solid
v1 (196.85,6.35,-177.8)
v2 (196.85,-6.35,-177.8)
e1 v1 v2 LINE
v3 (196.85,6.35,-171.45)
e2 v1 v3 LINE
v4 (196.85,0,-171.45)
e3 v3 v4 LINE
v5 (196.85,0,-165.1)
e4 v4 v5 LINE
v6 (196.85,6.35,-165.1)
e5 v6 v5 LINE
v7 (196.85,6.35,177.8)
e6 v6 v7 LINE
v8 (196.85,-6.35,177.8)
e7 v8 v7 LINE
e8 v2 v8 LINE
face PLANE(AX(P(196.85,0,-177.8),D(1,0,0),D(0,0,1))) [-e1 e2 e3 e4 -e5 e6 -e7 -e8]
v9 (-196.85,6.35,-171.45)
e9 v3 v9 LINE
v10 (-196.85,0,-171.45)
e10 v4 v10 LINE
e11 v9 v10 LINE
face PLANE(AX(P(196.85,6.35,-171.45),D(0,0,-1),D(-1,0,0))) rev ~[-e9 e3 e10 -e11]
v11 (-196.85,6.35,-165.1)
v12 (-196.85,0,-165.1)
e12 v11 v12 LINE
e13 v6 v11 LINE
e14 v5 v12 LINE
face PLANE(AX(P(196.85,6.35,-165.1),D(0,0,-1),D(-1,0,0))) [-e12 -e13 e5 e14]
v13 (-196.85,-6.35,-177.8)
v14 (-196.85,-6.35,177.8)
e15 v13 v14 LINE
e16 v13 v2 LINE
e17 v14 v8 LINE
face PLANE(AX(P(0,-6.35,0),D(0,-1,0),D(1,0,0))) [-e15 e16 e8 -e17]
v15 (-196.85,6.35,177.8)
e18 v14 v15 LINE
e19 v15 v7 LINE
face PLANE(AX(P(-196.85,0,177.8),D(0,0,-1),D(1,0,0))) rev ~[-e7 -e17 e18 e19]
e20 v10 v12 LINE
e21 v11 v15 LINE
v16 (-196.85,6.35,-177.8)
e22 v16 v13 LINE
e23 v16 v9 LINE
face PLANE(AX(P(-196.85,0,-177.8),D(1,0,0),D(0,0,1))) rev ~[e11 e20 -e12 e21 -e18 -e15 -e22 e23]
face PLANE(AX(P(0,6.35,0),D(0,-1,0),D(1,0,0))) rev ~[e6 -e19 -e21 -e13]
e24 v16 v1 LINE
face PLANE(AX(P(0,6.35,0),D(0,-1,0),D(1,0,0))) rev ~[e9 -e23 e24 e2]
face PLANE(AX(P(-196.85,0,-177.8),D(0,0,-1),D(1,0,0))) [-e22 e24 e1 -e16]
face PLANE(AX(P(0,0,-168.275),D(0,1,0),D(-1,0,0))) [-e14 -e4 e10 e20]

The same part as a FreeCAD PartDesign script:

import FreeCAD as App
import Part
import Sketcher
from FreeCAD import Vector
Q = App.Units.Quantity

doc = App.newDocument("Part")
body = doc.addObject("PartDesign::Body", "Body")

sketch1 = body.newObject("Sketcher::SketchObject", "Sketch")
sketch1.AttachmentSupport = (doc.getObject("XZ_Plane"), [""])
sketch1.MapMode = "FlatFace"
sketch1.addGeometry(Part.LineSegment(Vector(-197, 178, 0), Vector(-197, -178, 0)), False)
sketch1.addGeometry(Part.LineSegment(Vector(-197, -178, 0), Vector(197, -178, 0)), False)
sketch1.addGeometry(Part.LineSegment(Vector(197, -178, 0), Vector(197, 178, 0)), False)
sketch1.addGeometry(Part.LineSegment(Vector(197, 178, 0), Vector(-197, 178, 0)), False)
sketch1.addConstraint(Sketcher.Constraint("Coincident", 0, 2, 1, 1))
sketch1.addConstraint(Sketcher.Constraint("Coincident", 1, 2, 2, 1))
sketch1.addConstraint(Sketcher.Constraint("Coincident", 2, 2, 3, 1))
sketch1.addConstraint(Sketcher.Constraint("Coincident", 3, 2, 0, 1))
sketch1.addConstraint(Sketcher.Constraint("Vertical", 0))
sketch1.addConstraint(Sketcher.Constraint("Horizontal", 1))
sketch1.addConstraint(Sketcher.Constraint("Vertical", 2))
sketch1.addConstraint(Sketcher.Constraint("Horizontal", 3))
sketch1.addConstraint(Sketcher.Constraint("Symmetric", 0, 2, 2, 2, -1, 1))
sketch1.addConstraint(Sketcher.Constraint("DistanceY", 0, 2, 0, 1, Q("14 in")))
sketch1.addConstraint(Sketcher.Constraint("DistanceX", 1, 1, 1, 2, Q("15.5 in")))
pad1 = body.newObject("PartDesign::Pad", "Pad")
pad1.Profile = sketch1
pad1.Length = Q("0.5 in")
pad1.Midplane = True

sketch2 = body.newObject("Sketcher::SketchObject", "Sketch001")
sketch2.AttachmentSupport = (doc.getObject("XZ_Plane"), [""])
sketch2.MapMode = "FlatFace"
sketch2.AttachmentOffset = App.Placement(Vector(0, 0, -0.25 * 25.4), App.Rotation())
sketch2.addGeometry(Part.LineSegment(Vector(197, -165, 0), Vector(197, -171, 0)), False)
sketch2.addGeometry(Part.LineSegment(Vector(197, -171, 0), Vector(-197, -171, 0)), False)
sketch2.addGeometry(Part.LineSegment(Vector(-197, -171, 0), Vector(-197, -165, 0)), False)
sketch2.addGeometry(Part.LineSegment(Vector(-197, -165, 0), Vector(197, -165, 0)), False)
sketch2.addConstraint(Sketcher.Constraint("Coincident", 0, 2, 1, 1))
sketch2.addConstraint(Sketcher.Constraint("Coincident", 1, 2, 2, 1))
sketch2.addConstraint(Sketcher.Constraint("Coincident", 2, 2, 3, 1))
sketch2.addConstraint(Sketcher.Constraint("Coincident", 3, 2, 0, 1))
sketch2.addConstraint(Sketcher.Constraint("Vertical", 0))
sketch2.addConstraint(Sketcher.Constraint("Horizontal", 1))
sketch2.addConstraint(Sketcher.Constraint("Vertical", 2))
sketch2.addConstraint(Sketcher.Constraint("Horizontal", 3))
sketch2.addConstraint(Sketcher.Constraint("DistanceX", 1, 2, 1, 1, Q("15.5 in")))
sketch2.addConstraint(Sketcher.Constraint("DistanceY", 0, 2, 0, 1, Q("0.25 in")))
sketch2.addConstraint(Sketcher.Constraint("DistanceY", 2, 2, -1, 1, Q("6.5 in")))
sketch2.addConstraint(Sketcher.Constraint("DistanceX", -1, 1, 0, 2, Q("7.75 in")))
pocket1 = body.newObject("PartDesign::Pocket", "Pocket")
pocket1.Profile = sketch2
pocket1.Length = Q("0.25 in")
pocket1.Reversed = True

doc.recompute()
